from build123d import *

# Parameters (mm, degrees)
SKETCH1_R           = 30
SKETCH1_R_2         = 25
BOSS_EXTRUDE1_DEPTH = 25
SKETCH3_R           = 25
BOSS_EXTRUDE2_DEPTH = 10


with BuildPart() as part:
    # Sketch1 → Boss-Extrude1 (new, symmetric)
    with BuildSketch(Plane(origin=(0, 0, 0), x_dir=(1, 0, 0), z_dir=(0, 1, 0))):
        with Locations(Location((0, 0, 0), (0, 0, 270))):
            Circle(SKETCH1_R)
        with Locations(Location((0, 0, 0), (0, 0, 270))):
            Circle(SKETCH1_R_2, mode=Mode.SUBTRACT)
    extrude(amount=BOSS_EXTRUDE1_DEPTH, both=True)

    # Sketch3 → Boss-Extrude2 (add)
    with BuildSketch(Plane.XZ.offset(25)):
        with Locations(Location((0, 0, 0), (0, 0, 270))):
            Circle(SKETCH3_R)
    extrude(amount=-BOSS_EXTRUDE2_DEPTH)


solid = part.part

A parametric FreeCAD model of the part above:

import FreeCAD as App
import Part
import Sketcher

V = App.Vector

doc = App.newDocument("Part")
params = doc.addObject("Spreadsheet::Sheet", "Params")
for row, (alias, value) in enumerate([
    ("sketch1_diameter", "60 mm"),
    ("sketch1_diameter2", "50 mm"),
    ("pad1_length", "50 mm"),
    ("sketch2_diameter", "50 mm"),
    ("pad2_length", "10 mm"),
], start=1):
    params.set(f"A{row}", alias)
    params.set(f"B{row}", "=" + value)
    params.setAlias(f"B{row}", alias)

body = doc.addObject("PartDesign::Body", "Body")

# Sketch on XZ plane
sketch1 = body.newObject("Sketcher::SketchObject", "Sketch")
sketch1.AttachmentSupport = (doc.getObject("XZ_Plane"), [""])
sketch1.MapMode = "FlatFace"
sketch1.addGeometry([
    Part.Circle(V(0, 0, 0), V(0, 0, 1), 30),
    Part.Circle(V(0, 0, 0), V(0, 0, 1), 25),
], False)
sketch1.addConstraint([
    Sketcher.Constraint("Coincident", 0, 3, -1, 1),
    Sketcher.Constraint("Coincident", 1, 3, -1, 1),
    Sketcher.Constraint("Diameter", 0, 60.0),
    Sketcher.Constraint("Diameter", 1, 50.0),
])
sketch1.setExpression("Constraints[2]", "Params.sketch1_diameter")
sketch1.setExpression("Constraints[3]", "Params.sketch1_diameter2")
pad1 = body.newObject("PartDesign::Pad", "Pad")
pad1.Profile = sketch1
pad1.setExpression("Length", "Params.pad1_length")
pad1.Midplane = True

# Sketch on XZ plane
sketch2 = body.newObject("Sketcher::SketchObject", "Sketch001")
sketch2.AttachmentSupport = (doc.getObject("XZ_Plane"), [""])
sketch2.MapMode = "FlatFace"
sketch2.AttachmentOffset = App.Placement(V(0, 0, 25), App.Rotation())
sketch2.addGeometry(Part.Circle(V(0, 0, 0), V(0, 0, 1), 25), False)
sketch2.addConstraint([
    Sketcher.Constraint("Coincident", 0, 3, -1, 1),
    Sketcher.Constraint("Diameter", 0, 50.0),
])
sketch2.setExpression("Constraints[1]", "Params.sketch2_diameter")
pad2 = body.newObject("PartDesign::Pad", "Pad001")
pad2.Profile = sketch2
pad2.setExpression("Length", "Params.pad2_length")
pad2.Reversed = True

doc.recompute()
